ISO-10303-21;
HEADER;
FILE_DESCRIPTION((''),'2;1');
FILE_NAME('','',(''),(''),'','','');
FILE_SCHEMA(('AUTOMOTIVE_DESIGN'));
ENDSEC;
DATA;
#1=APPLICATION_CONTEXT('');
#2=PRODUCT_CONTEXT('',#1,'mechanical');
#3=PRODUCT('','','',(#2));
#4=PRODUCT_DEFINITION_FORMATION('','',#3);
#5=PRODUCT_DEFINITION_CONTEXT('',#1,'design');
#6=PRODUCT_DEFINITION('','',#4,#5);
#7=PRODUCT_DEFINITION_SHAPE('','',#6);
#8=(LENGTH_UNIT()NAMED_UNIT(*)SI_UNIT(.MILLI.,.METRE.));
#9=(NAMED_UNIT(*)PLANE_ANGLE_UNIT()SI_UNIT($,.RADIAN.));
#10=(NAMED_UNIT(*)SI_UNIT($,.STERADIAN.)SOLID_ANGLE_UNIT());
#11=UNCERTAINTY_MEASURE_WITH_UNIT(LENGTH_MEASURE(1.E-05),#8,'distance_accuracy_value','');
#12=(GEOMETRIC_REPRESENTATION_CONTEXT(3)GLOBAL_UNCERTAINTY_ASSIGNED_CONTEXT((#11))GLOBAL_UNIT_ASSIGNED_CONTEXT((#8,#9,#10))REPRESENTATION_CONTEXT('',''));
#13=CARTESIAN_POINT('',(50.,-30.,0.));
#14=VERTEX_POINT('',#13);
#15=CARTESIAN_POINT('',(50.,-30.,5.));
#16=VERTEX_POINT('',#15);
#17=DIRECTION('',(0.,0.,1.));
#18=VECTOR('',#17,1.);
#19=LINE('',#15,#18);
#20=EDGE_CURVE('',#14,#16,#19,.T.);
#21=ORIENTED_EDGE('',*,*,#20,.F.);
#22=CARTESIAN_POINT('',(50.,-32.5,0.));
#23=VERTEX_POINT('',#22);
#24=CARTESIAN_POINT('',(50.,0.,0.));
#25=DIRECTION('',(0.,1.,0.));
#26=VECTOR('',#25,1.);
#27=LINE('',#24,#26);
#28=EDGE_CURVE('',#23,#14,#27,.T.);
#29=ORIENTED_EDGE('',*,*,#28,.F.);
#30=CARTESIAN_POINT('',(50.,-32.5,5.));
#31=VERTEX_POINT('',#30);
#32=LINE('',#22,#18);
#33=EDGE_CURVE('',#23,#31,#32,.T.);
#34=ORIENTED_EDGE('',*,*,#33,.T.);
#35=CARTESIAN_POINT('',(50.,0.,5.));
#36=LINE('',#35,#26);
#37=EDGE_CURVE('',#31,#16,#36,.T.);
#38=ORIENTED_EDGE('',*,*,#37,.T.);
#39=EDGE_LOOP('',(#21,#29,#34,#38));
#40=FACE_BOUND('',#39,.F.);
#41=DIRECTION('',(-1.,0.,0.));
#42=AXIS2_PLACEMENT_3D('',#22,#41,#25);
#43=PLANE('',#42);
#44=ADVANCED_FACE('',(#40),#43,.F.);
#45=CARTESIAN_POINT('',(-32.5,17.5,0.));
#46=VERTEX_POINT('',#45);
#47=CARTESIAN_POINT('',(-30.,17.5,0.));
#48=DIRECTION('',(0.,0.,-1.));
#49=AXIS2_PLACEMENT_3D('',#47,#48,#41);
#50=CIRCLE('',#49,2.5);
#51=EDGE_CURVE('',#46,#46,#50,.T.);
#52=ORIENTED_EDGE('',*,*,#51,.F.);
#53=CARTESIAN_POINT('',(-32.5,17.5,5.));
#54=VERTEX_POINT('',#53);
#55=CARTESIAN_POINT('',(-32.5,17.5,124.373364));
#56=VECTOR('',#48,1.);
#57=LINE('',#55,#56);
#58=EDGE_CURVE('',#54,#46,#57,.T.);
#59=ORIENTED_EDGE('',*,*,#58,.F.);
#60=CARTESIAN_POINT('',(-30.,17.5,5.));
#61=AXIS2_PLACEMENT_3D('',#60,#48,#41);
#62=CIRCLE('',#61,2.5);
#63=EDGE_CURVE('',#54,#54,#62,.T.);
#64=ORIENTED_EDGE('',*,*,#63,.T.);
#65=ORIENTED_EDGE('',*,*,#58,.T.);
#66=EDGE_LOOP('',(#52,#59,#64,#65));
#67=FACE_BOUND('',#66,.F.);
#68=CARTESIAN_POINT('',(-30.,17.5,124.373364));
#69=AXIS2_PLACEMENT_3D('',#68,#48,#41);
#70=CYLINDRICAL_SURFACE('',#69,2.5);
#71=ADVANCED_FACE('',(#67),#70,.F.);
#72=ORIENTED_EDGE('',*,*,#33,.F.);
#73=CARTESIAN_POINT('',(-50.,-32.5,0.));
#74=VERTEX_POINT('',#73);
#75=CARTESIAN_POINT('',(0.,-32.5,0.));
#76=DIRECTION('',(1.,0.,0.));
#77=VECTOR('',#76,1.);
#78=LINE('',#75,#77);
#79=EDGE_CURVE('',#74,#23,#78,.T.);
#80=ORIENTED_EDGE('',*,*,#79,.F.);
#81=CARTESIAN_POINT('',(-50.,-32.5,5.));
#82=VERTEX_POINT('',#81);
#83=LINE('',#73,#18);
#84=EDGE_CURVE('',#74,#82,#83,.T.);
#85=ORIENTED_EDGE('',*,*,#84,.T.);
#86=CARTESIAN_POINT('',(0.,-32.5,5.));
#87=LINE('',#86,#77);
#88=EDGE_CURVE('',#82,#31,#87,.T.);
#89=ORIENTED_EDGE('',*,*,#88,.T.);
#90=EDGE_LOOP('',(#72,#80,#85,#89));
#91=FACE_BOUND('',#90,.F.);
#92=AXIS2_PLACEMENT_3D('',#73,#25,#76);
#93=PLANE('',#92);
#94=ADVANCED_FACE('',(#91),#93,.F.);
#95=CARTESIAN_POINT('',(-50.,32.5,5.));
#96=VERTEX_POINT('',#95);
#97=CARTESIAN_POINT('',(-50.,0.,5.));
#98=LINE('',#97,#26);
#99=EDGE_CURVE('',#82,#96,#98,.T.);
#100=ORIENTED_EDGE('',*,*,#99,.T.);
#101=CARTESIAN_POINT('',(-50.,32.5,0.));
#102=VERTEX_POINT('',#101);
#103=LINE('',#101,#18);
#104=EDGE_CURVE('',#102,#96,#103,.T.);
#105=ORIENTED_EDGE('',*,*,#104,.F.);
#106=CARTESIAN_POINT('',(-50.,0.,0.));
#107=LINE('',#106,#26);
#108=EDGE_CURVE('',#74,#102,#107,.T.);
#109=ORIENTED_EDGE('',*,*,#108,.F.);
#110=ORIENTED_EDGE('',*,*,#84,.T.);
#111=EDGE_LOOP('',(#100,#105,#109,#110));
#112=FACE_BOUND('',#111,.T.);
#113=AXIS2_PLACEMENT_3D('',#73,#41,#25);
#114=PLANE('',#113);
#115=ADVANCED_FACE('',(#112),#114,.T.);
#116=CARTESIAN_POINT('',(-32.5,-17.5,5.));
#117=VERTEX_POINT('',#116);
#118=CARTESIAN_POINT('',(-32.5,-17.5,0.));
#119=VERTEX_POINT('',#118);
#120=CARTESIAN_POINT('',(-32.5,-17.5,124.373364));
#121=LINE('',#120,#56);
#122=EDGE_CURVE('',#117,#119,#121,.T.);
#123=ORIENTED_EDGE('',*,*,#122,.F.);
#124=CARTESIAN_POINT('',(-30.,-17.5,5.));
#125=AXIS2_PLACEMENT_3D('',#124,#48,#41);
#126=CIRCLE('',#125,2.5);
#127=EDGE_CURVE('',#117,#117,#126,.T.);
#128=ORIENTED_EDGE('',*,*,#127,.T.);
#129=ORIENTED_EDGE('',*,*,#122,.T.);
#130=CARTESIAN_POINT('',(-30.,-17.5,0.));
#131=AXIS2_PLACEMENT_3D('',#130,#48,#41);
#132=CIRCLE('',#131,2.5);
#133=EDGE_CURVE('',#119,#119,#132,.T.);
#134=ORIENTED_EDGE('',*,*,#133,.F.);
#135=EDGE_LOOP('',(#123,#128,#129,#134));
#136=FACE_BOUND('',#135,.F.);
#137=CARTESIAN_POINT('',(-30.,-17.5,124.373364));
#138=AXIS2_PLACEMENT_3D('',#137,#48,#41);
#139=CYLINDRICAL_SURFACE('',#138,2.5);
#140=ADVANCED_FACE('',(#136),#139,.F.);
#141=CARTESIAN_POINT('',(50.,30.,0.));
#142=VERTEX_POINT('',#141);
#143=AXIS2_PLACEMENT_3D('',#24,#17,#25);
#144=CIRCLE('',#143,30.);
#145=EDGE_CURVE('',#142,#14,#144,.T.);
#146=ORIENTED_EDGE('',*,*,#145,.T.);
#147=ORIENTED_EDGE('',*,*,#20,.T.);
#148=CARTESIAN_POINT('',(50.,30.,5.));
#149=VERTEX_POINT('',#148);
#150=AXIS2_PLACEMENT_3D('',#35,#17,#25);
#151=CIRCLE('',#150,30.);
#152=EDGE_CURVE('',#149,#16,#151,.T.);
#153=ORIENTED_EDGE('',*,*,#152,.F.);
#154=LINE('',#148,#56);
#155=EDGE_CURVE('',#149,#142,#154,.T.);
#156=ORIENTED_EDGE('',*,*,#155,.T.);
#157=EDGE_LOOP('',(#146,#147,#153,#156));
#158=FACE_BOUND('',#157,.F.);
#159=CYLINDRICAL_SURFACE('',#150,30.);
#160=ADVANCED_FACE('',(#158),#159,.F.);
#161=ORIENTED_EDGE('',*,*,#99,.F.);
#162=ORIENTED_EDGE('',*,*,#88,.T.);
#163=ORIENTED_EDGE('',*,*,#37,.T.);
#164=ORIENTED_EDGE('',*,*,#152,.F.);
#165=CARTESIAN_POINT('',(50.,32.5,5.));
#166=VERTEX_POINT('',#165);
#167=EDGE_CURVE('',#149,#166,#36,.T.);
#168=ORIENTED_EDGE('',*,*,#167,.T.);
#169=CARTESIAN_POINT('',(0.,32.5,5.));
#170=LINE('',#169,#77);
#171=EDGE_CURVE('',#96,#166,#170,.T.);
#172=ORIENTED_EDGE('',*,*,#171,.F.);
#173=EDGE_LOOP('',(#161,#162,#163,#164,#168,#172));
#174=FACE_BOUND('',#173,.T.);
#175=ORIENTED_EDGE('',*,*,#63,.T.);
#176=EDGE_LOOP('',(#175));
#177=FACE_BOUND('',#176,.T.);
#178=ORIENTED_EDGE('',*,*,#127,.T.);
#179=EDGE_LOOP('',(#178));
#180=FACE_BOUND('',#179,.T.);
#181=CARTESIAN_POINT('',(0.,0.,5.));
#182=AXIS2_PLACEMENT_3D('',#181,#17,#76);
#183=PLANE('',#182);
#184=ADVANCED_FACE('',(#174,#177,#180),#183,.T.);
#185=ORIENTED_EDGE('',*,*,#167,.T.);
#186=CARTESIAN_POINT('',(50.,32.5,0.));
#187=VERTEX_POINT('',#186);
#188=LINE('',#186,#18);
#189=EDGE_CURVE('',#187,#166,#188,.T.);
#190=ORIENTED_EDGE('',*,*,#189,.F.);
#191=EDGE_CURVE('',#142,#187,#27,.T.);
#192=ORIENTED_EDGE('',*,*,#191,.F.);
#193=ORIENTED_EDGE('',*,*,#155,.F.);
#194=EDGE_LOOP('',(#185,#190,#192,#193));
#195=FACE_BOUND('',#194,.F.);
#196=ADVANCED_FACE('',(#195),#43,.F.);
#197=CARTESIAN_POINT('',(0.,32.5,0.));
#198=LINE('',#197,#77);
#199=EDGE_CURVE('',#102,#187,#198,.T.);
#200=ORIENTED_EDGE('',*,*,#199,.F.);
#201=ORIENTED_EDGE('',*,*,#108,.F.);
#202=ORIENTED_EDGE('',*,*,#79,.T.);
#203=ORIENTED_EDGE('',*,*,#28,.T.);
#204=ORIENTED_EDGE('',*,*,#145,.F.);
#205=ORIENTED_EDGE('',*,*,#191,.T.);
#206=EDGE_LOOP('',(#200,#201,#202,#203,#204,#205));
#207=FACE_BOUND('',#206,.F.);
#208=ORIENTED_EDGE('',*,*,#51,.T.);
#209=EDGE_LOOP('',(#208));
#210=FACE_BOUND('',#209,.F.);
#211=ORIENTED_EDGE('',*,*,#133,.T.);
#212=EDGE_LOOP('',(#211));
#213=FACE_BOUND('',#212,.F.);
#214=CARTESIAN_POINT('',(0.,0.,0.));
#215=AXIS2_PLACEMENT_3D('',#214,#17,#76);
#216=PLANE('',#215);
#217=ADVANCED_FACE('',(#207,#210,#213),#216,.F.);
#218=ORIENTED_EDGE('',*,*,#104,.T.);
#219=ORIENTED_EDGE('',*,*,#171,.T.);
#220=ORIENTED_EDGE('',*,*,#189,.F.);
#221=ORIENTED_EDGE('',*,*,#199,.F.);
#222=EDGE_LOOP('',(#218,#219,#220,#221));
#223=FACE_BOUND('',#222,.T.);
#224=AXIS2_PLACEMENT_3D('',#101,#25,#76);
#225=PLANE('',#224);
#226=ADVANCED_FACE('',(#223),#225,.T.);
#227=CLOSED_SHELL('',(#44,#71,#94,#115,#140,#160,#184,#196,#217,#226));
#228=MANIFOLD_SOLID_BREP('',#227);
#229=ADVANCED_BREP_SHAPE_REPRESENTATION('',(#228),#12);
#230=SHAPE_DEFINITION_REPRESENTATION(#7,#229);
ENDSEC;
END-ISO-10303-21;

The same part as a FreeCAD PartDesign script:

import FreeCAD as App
import Part
import Sketcher
from FreeCAD import Vector


def add_polygon(sketch, points):
    """Adds a closed chain of lines whose ends are joined by coincident constraints."""
    first, n = sketch.GeometryCount, len(points)
    for a, b in zip(points, points[1:] + points[:1]):
        sketch.addGeometry(Part.LineSegment(App.Vector(*a, 0), App.Vector(*b, 0)), False)
    for i in range(n):
        sketch.addConstraint(Sketcher.Constraint("Coincident", first + i, 2, first + (i + 1) % n, 1))

doc = App.newDocument("Part")
body = doc.addObject("PartDesign::Body", "Body")

# Sketch on XY plane
sketch1 = doc.addObject("Sketcher::SketchObject", "Sketch")
body.addObject(sketch1)
sketch1.AttachmentSupport = (doc.XY_Plane, [""])
sketch1.MapMode = "FlatFace"
add_polygon(sketch1, [(-50, 32), (-50, -32), (50, -32), (50, 32)])  # lines 0-3
sketch1.addConstraint([
    Sketcher.Constraint("Vertical", 0),
    Sketcher.Constraint("Horizontal", 1),
    Sketcher.Constraint("Vertical", 2),
    Sketcher.Constraint("Horizontal", 3),
    Sketcher.Constraint("Symmetric", 0, 2, 2, 2, -1, 1),
    Sketcher.Constraint("DistanceX", 1, 1, 1, 2, 100.0),
    Sketcher.Constraint("DistanceY", 0, 2, 0, 1, 65.0),
])
pad1 = doc.addObject("PartDesign::Pad", "Pad")
body.addObject(pad1)
pad1.Profile = sketch1
pad1.Length = 5

# Sketch on XY plane
sketch2 = doc.addObject("Sketcher::SketchObject", "Sketch001")
body.addObject(sketch2)
sketch2.AttachmentSupport = (doc.XY_Plane, [""])
sketch2.MapMode = "FlatFace"
sketch2.AttachmentOffset = App.Placement(Vector(0, 0, 5), App.Rotation())
sketch2.addGeometry(Part.Circle(Vector(50, 0, 0), Vector(0, 0, 1), 30), False)
sketch2.addConstraint([
    Sketcher.Constraint("PointOnObject", 0, 3, -1),
    Sketcher.Constraint("Diameter", 0, 60.0),
    Sketcher.Constraint("DistanceX", -1, 1, 0, 3, 50.0),
])
pocket1 = doc.addObject("PartDesign::Pocket", "Pocket")
body.addObject(pocket1)
pocket1.Profile = sketch2
pocket1.Type = "ThroughAll"

# Sketch on XY plane
sketch3 = doc.addObject("Sketcher::SketchObject", "Sketch002")
body.addObject(sketch3)
sketch3.AttachmentSupport = (doc.XY_Plane, [""])
sketch3.MapMode = "FlatFace"
sketch3.AttachmentOffset = App.Placement(Vector(0, 0, 5), App.Rotation())
sketch3.addGeometry([
    Part.Circle(Vector(-30, 17.5, 0), Vector(0, 0, 1), 2.5),
    Part.Circle(Vector(-30, -17.5, 0), Vector(0, 0, 1), 2.5),
], False)
sketch3.addConstraint([
    Sketcher.Constraint("Equal", 0, 1),
    Sketcher.Constraint("Symmetric", 0, 3, 1, 3, -1),
    Sketcher.Constraint("Diameter", 0, 5.0),
    Sketcher.Constraint("DistanceX", 0, 3, -1, 1, 30.0),
    Sketcher.Constraint("DistanceY", 1, 3, 0, 3, 35.0),
])
doc.recompute()
hole = doc.addObject("PartDesign::Hole", "Hole")
body.addObject(hole)
hole.Profile = sketch3
hole.ThreadType = "None"
hole.Diameter = 5
hole.DepthType = "ThroughAll"

doc.recompute()
